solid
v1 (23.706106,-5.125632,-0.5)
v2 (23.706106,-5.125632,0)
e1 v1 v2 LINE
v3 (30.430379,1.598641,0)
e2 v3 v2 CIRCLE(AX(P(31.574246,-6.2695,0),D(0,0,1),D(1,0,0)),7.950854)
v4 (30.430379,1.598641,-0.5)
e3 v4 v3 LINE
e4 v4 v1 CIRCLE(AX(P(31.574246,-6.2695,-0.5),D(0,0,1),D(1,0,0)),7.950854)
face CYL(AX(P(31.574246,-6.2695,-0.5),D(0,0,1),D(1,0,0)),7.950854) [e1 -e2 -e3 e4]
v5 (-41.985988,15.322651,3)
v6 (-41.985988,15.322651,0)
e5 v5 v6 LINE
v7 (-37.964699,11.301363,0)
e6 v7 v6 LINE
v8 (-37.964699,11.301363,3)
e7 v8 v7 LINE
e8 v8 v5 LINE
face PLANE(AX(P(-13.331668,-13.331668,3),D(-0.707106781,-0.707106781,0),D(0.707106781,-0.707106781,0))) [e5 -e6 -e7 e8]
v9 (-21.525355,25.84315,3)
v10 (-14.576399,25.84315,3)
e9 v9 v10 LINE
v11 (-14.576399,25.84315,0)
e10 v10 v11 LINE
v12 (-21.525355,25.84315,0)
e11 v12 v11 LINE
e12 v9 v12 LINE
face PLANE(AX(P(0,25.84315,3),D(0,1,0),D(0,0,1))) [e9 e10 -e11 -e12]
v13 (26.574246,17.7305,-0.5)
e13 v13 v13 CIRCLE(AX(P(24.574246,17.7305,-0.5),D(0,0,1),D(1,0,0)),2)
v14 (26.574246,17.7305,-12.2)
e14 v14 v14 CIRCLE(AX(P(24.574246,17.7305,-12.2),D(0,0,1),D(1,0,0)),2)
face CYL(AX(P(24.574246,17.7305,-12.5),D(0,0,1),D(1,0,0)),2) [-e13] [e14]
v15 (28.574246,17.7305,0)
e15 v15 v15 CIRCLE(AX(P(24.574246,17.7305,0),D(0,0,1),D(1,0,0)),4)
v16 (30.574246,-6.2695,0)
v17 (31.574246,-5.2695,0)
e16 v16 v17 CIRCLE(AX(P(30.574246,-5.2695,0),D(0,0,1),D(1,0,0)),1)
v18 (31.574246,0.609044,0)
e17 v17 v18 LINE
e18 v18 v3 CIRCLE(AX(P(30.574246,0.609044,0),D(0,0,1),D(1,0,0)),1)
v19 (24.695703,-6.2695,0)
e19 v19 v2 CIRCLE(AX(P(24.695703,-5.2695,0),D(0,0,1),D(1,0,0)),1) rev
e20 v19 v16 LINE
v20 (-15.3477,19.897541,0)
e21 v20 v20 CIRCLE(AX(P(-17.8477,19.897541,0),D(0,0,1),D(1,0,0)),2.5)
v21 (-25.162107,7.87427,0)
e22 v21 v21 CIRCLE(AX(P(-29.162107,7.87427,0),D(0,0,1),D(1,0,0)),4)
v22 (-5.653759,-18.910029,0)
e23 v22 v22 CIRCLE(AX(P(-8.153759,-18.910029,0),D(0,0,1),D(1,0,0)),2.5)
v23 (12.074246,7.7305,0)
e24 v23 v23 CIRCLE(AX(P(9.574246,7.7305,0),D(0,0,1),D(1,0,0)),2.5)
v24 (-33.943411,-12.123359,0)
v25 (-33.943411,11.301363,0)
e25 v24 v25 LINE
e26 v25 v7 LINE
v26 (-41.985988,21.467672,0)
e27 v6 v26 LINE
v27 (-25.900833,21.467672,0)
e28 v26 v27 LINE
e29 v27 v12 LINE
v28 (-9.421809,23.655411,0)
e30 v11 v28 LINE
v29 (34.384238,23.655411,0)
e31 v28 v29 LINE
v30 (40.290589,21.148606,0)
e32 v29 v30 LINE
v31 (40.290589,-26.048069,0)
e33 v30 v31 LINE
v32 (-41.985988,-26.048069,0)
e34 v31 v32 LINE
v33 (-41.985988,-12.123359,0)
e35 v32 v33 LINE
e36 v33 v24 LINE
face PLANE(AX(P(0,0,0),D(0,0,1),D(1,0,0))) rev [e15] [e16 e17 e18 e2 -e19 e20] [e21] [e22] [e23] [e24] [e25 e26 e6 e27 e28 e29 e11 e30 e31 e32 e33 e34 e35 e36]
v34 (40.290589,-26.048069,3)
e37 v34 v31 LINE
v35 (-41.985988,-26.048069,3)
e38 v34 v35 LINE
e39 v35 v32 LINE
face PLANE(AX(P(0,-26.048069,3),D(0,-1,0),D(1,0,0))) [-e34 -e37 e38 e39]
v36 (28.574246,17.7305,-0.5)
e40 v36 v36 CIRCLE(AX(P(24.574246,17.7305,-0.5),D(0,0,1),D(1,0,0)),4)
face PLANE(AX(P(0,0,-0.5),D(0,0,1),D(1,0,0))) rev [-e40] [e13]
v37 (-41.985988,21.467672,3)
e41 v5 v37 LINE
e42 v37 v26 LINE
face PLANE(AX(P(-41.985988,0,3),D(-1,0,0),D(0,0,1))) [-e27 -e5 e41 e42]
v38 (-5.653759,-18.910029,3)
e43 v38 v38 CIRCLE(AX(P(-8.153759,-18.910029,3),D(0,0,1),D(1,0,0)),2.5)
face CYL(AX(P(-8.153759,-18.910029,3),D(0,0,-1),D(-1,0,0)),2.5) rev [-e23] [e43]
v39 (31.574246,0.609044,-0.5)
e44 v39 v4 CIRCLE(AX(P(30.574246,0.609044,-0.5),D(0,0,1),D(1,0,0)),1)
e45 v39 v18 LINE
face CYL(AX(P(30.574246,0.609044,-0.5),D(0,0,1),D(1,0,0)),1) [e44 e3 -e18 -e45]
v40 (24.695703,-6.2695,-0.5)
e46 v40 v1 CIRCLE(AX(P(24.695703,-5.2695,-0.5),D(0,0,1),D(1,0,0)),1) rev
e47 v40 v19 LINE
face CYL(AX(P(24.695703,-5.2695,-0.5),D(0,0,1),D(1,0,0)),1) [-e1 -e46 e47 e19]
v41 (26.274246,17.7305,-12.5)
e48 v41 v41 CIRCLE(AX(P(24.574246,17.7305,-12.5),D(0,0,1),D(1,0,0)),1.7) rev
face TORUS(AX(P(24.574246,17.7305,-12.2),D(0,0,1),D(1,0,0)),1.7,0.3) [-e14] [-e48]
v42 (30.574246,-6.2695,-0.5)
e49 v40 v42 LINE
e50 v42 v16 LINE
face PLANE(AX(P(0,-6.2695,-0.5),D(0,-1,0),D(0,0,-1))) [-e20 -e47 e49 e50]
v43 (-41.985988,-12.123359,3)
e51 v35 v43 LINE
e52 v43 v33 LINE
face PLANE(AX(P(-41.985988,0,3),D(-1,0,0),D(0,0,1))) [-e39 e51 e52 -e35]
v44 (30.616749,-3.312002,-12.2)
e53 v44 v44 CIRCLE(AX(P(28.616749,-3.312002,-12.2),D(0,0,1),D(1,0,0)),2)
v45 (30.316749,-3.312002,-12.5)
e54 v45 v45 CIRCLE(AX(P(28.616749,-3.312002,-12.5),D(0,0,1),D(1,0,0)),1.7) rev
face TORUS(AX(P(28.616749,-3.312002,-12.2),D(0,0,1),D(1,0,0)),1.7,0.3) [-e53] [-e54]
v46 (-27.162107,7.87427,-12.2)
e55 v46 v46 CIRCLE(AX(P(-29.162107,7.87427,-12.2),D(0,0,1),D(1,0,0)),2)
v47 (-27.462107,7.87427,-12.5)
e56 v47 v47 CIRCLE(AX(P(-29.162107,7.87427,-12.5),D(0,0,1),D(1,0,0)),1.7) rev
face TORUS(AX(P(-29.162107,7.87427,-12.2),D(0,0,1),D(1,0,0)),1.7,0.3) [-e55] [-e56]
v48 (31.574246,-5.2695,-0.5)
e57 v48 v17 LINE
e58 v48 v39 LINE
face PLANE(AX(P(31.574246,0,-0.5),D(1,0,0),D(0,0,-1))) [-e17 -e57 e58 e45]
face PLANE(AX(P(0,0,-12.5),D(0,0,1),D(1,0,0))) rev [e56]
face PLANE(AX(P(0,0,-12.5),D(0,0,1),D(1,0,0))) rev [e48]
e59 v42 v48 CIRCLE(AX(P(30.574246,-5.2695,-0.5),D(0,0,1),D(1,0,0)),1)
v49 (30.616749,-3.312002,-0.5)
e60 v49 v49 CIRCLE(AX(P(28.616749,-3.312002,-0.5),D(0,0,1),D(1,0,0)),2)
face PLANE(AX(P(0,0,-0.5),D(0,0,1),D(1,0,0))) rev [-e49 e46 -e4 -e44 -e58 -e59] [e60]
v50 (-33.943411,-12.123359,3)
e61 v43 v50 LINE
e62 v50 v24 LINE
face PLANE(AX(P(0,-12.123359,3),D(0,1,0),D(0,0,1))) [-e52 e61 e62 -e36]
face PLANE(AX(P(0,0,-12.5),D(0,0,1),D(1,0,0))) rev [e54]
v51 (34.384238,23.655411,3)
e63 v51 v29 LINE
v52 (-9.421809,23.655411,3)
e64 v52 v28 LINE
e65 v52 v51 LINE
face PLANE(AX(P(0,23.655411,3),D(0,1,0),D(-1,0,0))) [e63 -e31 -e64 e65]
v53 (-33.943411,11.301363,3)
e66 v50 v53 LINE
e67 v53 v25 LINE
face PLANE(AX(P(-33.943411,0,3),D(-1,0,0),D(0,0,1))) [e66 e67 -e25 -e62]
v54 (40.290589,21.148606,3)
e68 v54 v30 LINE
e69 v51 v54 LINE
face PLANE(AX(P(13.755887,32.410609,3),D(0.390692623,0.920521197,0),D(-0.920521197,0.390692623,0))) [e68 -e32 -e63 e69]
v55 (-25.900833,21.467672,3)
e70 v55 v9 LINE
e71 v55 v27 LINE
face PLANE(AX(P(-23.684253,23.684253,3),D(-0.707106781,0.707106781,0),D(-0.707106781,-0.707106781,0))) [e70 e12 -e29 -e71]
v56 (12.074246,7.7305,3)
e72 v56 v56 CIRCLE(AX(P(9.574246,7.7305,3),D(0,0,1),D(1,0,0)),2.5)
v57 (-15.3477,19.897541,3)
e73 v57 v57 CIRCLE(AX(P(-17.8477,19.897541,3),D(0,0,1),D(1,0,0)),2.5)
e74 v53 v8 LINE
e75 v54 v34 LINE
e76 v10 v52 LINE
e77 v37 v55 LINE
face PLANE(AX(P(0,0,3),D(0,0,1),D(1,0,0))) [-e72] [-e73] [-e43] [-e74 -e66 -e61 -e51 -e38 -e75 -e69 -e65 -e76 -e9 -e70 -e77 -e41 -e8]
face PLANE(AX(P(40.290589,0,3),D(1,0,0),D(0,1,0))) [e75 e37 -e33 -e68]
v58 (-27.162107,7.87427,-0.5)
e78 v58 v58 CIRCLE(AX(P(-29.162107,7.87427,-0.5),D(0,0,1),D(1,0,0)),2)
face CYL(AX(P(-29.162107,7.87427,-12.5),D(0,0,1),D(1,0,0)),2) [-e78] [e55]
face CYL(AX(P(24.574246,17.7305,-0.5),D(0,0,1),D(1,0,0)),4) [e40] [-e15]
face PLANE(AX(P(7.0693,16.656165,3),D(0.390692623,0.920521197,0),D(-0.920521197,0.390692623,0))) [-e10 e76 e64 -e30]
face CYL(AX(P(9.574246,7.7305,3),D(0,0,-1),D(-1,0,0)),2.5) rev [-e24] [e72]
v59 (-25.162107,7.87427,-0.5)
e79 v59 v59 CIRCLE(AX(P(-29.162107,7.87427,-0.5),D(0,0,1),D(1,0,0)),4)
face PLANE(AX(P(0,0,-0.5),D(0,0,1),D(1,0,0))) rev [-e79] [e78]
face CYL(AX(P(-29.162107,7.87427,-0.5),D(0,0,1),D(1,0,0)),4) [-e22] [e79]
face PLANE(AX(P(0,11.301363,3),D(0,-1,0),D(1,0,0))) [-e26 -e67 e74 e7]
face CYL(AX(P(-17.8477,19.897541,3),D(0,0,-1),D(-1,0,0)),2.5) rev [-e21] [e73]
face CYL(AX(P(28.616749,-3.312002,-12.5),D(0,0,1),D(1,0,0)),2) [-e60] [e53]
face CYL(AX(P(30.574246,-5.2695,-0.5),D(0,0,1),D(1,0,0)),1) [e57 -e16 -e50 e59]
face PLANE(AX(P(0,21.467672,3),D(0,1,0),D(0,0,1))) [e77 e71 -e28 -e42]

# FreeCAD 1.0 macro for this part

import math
import FreeCAD as App
import Part
import Sketcher

V = App.Vector
Q = App.Units.Quantity


def edges_at(feature, points):
    """Names of the edges that pass closest to the given points."""
    edges = feature.Shape.Edges
    near = lambda p: min(range(len(edges)), key=lambda i: edges[i].distToShape(Part.Vertex(*p))[0])
    return sorted({f"Edge{near(p) + 1}" for p in points})


def add_polygon(sketch, points):
    """Adds a closed chain of lines whose ends are joined by coincident constraints."""
    first, n = sketch.GeometryCount, len(points)
    for a, b in zip(points, points[1:] + points[:1]):
        sketch.addGeometry(Part.LineSegment(App.Vector(*a, 0), App.Vector(*b, 0)), False)
    for i in range(n):
        sketch.addConstraint(Sketcher.Constraint("Coincident", first + i, 2, first + (i + 1) % n, 1))

doc = App.newDocument("Part")
body = doc.addObject("PartDesign::Body", "Body")

sketch1 = body.newObject("Sketcher::SketchObject", "Sketch")
sketch1.AttachmentSupport = (doc.getObject("XY_Plane"), [""])
sketch1.MapMode = "FlatFace"
add_polygon(sketch1, [(-41.985988, 21.467672), (-41.985988, 15.322651), (-37.964699, 11.301363), (-33.943411, 11.301363), (-33.943411, -12.123359), (-41.985988, -12.123359), (-41.985988, -26.048069), (40.290589, -26.048069), (40.290589, 21.148606), (34.384238, 23.655411), (-9.421809, 23.655411), (-14.576399, 25.84315), (-21.525355, 25.84315), (-25.900833, 21.467672)])
sketch1.addGeometry(Part.Circle(V(-8.153759, -18.910029, 0), V(0, 0, 1), 2.5), False)
sketch1.addGeometry(Part.Circle(V(9.574246, 7.7305, 0), V(0, 0, 1), 2.5), False)
sketch1.addGeometry(Part.Circle(V(-17.8477, 19.897541, 0), V(0, 0, 1), 2.5), False)
sketch1.addConstraint(Sketcher.Constraint("Vertical", 0))
sketch1.addConstraint(Sketcher.Constraint("Horizontal", 2))
sketch1.addConstraint(Sketcher.Constraint("Vertical", 3))
sketch1.addConstraint(Sketcher.Constraint("Horizontal", 4))
sketch1.addConstraint(Sketcher.Constraint("Vertical", 5))
sketch1.addConstraint(Sketcher.Constraint("Horizontal", 6))
sketch1.addConstraint(Sketcher.Constraint("Vertical", 7))
sketch1.addConstraint(Sketcher.Constraint("Horizontal", 9))
sketch1.addConstraint(Sketcher.Constraint("Horizontal", 11))
sketch1.addConstraint(Sketcher.Constraint("Horizontal", 13))
sketch1.addConstraint(Sketcher.Constraint("Equal", 14, 15))
sketch1.addConstraint(Sketcher.Constraint("Equal", 15, 16))
sketch1.addConstraint(Sketcher.Constraint("Parallel", 8, 10))
sketch1.addConstraint(Sketcher.Constraint("Perpendicular", 1, 12))
sketch1.addConstraint(Sketcher.Constraint("Vertical", 0, 2, 4, 2))
sketch1.addConstraint(Sketcher.Constraint("Diameter", 14, Q("5 mm")))
sketch1.addConstraint(Sketcher.Constraint("Angle", 1, Q("-45 deg")))
sketch1.addConstraint(Sketcher.Constraint("DistanceX", 1, 2, 16, 3, Q("20.117 mm")))
sketch1.addConstraint(Sketcher.Constraint("DistanceX", 3, 2, 6, 2, Q("74.233999 mm")))
sketch1.addConstraint(Sketcher.Constraint("DistanceX", 2, 1, 2, 2, Q("4.021289 mm")))
sketch1.addConstraint(Sketcher.Constraint("DistanceY", 0, 2, 0, 1, Q("6.145021 mm")))
sketch1.addConstraint(Sketcher.Constraint("DistanceY", 3, 2, 3, 1, Q("23.424721 mm")))
sketch1.addConstraint(Sketcher.Constraint("DistanceY", 5, 2, 5, 1, Q("13.92471 mm")))
sketch1.addConstraint(Sketcher.Constraint("DistanceY", -1, 1, 15, 3, Q("7.7305 mm")))
sketch1.addConstraint(Sketcher.Constraint("DistanceX", 16, 3, -1, 1, Q("17.8477 mm")))
sketch1.addConstraint(Sketcher.Constraint("DistanceX", 10, 2, -1, 1, Q("14.576399 mm")))
sketch1.addConstraint(Sketcher.Constraint("DistanceY", 3, 2, 16, 3, Q("32.0209 mm")))
sketch1.addConstraint(Sketcher.Constraint("DistanceX", 2, 2, 9, 2, Q("24.521602 mm")))
sketch1.addConstraint(Sketcher.Constraint("DistanceY", 0, 2, 10, 2, Q("10.520499 mm")))
sketch1.addConstraint(Sketcher.Constraint("Distance", 1, Q("5.686961 mm")))
sketch1.addConstraint(Sketcher.Constraint("Distance", 8, Q("6.416311 mm")))
sketch1.addConstraint(Sketcher.Constraint("DistanceX", 9, 2, 9, 1, Q("43.806047 mm")))
sketch1.addConstraint(Sketcher.Constraint("DistanceX", 11, 2, 11, 1, Q("6.948956 mm")))
sketch1.addConstraint(Sketcher.Constraint("DistanceX", 14, 3, -1, 1, Q("8.153759 mm")))
sketch1.addConstraint(Sketcher.Constraint("DistanceY", 14, 3, -1, 1, Q("18.910029 mm")))
sketch1.addConstraint(Sketcher.Constraint("DistanceY", -1, 1, 16, 3, Q("19.897541 mm")))
sketch1.addConstraint(Sketcher.Constraint("DistanceX", 15, 3, 8, 2, Q("24.809992 mm")))
pad1 = body.newObject("PartDesign::Pad", "Pad")
pad1.Profile = sketch1
pad1.Length = 3

sketch2 = body.newObject("Sketcher::SketchObject", "Sketch001")
sketch2.AttachmentSupport = (doc.getObject("XY_Plane"), [""])
sketch2.MapMode = "FlatFace"
sketch2.addGeometry(Part.Circle(V(-29.162107, 7.87427, 0), V(0, 0, 1), 4), False)
sketch2.addGeometry(Part.Circle(V(-29.162107, 7.87427, 0), V(0, 0, 1), 2), False)
sketch2.addGeometry(Part.Circle(V(24.574246, 17.7305, 0), V(0, 0, 1), 4), False)
sketch2.addGeometry(Part.Circle(V(24.574246, 17.7305, 0), V(0, 0, 1), 2), False)
sketch2.addGeometry(Part.ArcOfCircle(Part.Circle(V(24.695703, -5.2695, 0), V(0, 0, 1), 1), math.radians(171.728312), math.radians(270)), False)
sketch2.addGeometry(Part.LineSegment(V(24.695703, -6.2695, 0), V(30.574246, -6.2695, 0)), False)
sketch2.addGeometry(Part.ArcOfCircle(Part.Circle(V(30.574246, -5.2695, 0), V(0, 0, 1), 1), math.radians(-90), math.radians(0)), False)
sketch2.addGeometry(Part.LineSegment(V(31.574246, -5.2695, 0), V(31.574246, 0.609044, 0)), False)
sketch2.addGeometry(Part.ArcOfCircle(Part.Circle(V(30.574246, 0.609044, 0), V(0, 0, 1), 1), math.radians(0), math.radians(98.271688)), False)
sketch2.addGeometry(Part.ArcOfCircle(Part.Circle(V(31.574246, -6.2695, 0), V(0, 0, 1), 7.950854), math.radians(98.271688), math.radians(171.728312)), False)
sketch2.addGeometry(Part.Circle(V(28.616749, -3.312002, 0), V(0, 0, 1), 2), False)
sketch2.addConstraint(Sketcher.Constraint("Tangent", 4, 2, 5, 1))
sketch2.addConstraint(Sketcher.Constraint("Tangent", 5, 2, 6, 1))
sketch2.addConstraint(Sketcher.Constraint("Tangent", 6, 2, 7, 1))
sketch2.addConstraint(Sketcher.Constraint("Tangent", 7, 2, 8, 1))
sketch2.addConstraint(Sketcher.Constraint("Tangent", 8, 2, 9, 1))
sketch2.addConstraint(Sketcher.Constraint("Tangent", 9, 2, 4, 1))
sketch2.addConstraint(Sketcher.Constraint("Horizontal", 5))
sketch2.addConstraint(Sketcher.Constraint("Vertical", 7))
sketch2.addConstraint(Sketcher.Constraint("Coincident", 1, 3, 0, 3))
sketch2.addConstraint(Sketcher.Constraint("Coincident", 3, 3, 2, 3))
sketch2.addConstraint(Sketcher.Constraint("Equal", 0, 2))
sketch2.addConstraint(Sketcher.Constraint("Equal", 1, 3))
sketch2.addConstraint(Sketcher.Constraint("Equal", 4, 6))
sketch2.addConstraint(Sketcher.Constraint("Equal", 6, 8))
sketch2.addConstraint(Sketcher.Constraint("Equal", 3, 10))
sketch2.addConstraint(Sketcher.Constraint("Horizontal", 9, 3, 4, 2))
sketch2.addConstraint(Sketcher.Constraint("Vertical", 9, 3, 6, 2))
sketch2.addConstraint(Sketcher.Constraint("Diameter", 0, Q("8 mm")))
sketch2.addConstraint(Sketcher.Constraint("Diameter", 1, Q("4 mm")))
sketch2.addConstraint(Sketcher.Constraint("Radius", 4, Q("1 mm")))
sketch2.addConstraint(Sketcher.Constraint("DistanceY", 4, 3, 2, 3, Q("23 mm")))
sketch2.addConstraint(Sketcher.Constraint("DistanceX", 2, 3, 6, 3, Q("6 mm")))
sketch2.addConstraint(Sketcher.Constraint("DistanceY", 10, 3, -1, 1, Q("3.312002 mm")))
sketch2.addConstraint(Sketcher.Constraint("Radius", 9, Q("7.950854 mm")))
sketch2.addConstraint(Sketcher.Constraint("DistanceY", -1, 1, 2, 3, Q("17.7305 mm")))
sketch2.addConstraint(Sketcher.Constraint("DistanceY", -1, 1, 0, 3, Q("7.87427 mm")))
sketch2.addConstraint(Sketcher.Constraint("DistanceX", -1, 1, 10, 3, Q("28.616749 mm")))
sketch2.addConstraint(Sketcher.Constraint("DistanceX", -1, 1, 8, 2, Q("30.430379 mm")))
sketch2.addConstraint(Sketcher.Constraint("DistanceX", 0, 3, 4, 3, Q("53.85781 mm")))
pad2 = body.newObject("PartDesign::Pad", "Pad001")
pad2.Profile = sketch2
pad2.Length = 0.5
pad2.Reversed = True

sketch3 = body.newObject("Sketcher::SketchObject", "Sketch002")
sketch3.AttachmentSupport = (doc.getObject("XY_Plane"), [""])
sketch3.MapMode = "FlatFace"
sketch3.addGeometry(Part.Circle(V(28.616749, -3.312002, 0), V(0, 0, 1), 2), False)
sketch3.addGeometry(Part.Circle(V(24.574246, 17.7305, 0), V(0, 0, 1), 2), False)
sketch3.addGeometry(Part.Circle(V(-29.162107, 7.87427, 0), V(0, 0, 1), 2), False)
sketch3.addConstraint(Sketcher.Constraint("Equal", 0, 1))
sketch3.addConstraint(Sketcher.Constraint("Equal", 1, 2))
sketch3.addConstraint(Sketcher.Constraint("Diameter", 0, Q("4 mm")))
sketch3.addConstraint(Sketcher.Constraint("DistanceY", 0, 3, -1, 1, Q("3.312002 mm")))
sketch3.addConstraint(Sketcher.Constraint("DistanceY", -1, 1, 1, 3, Q("17.7305 mm")))
sketch3.addConstraint(Sketcher.Constraint("DistanceX", -1, 1, 0, 3, Q("28.616749 mm")))
sketch3.addConstraint(Sketcher.Constraint("DistanceY", -1, 1, 2, 3, Q("7.87427 mm")))
sketch3.addConstraint(Sketcher.Constraint("DistanceX", -1, 1, 1, 3, Q("24.574246 mm")))
sketch3.addConstraint(Sketcher.Constraint("DistanceX", 2, 3, -1, 1, Q("29.162107 mm")))
pad3 = body.newObject("PartDesign::Pad", "Pad002")
pad3.Profile = sketch3
pad3.Length = 12.5
pad3.Reversed = True
doc.recompute()

fillet = body.newObject("PartDesign::Fillet", "Fillet")
fillet.Base = (pad3, edges_at(pad3, [(26.617, -3.312, -12.5), (22.574, 17.731, -12.5), (-31.162, 7.874, -12.5)]))
fillet.Radius = 0.3

doc.recompute()
